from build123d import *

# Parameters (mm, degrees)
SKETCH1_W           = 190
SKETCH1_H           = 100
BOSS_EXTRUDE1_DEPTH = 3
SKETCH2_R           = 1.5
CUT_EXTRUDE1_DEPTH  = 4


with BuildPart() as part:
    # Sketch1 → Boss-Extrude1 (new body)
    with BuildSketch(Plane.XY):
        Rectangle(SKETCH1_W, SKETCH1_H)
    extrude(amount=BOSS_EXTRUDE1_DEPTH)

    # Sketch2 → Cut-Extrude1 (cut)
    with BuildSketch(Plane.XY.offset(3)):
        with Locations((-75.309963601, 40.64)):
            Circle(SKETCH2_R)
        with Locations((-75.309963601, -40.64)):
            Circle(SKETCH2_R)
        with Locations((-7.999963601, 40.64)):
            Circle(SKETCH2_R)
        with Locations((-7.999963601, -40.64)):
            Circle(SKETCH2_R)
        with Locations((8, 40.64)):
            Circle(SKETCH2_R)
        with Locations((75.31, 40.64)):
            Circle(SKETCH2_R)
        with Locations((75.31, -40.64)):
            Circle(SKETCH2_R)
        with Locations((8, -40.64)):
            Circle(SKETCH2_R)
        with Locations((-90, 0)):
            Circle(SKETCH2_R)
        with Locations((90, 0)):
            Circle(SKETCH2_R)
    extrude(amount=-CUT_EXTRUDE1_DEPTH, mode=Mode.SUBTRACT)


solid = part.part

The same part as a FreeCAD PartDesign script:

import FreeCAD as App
import Part
import Sketcher


def add_polygon(sketch, points):
    """Adds a closed chain of lines whose ends are joined by coincident constraints."""
    first, n = sketch.GeometryCount, len(points)
    for a, b in zip(points, points[1:] + points[:1]):
        sketch.addGeometry(Part.LineSegment(App.Vector(*a, 0), App.Vector(*b, 0)), False)
    for i in range(n):
        sketch.addConstraint(Sketcher.Constraint("Coincident", first + i, 2, first + (i + 1) % n, 1))

doc = App.newDocument("Part")
body = doc.addObject("PartDesign::Body", "Body")

# Sketch on XY plane
sketch1 = doc.addObject("Sketcher::SketchObject", "Sketch")
body.addObject(sketch1)
sketch1.AttachmentSupport = (doc.XY_Plane, [""])
sketch1.MapMode = "FlatFace"
add_polygon(sketch1, [(-95, 50), (-95, -50), (95, -50), (95, 50)])  # lines 0-3
sketch1.addConstraint([
    Sketcher.Constraint("Vertical", 0),
    Sketcher.Constraint("Horizontal", 1),
    Sketcher.Constraint("Vertical", 2),
    Sketcher.Constraint("Horizontal", 3),
    Sketcher.Constraint("Symmetric", 0, 2, 2, 2, -1, 1),
    Sketcher.Constraint("DistanceX", 1, 1, 1, 2, 190.0),
    Sketcher.Constraint("DistanceY", 0, 2, 0, 1, 100.0),
])
pad1 = doc.addObject("PartDesign::Pad", "Pad")
body.addObject(pad1)
pad1.Profile = sketch1
pad1.Length = 3

# Sketch on XY plane
sketch2 = doc.addObject("Sketcher::SketchObject", "Sketch001")
body.addObject(sketch2)
sketch2.AttachmentSupport = (doc.XY_Plane, [""])
sketch2.MapMode = "FlatFace"
sketch2.AttachmentOffset = App.Placement(App.Vector(0, 0, 3), App.Rotation())
sketch2.addGeometry([
    Part.Circle(App.Vector(-75.3, 40.6, 0), App.Vector(0, 0, 1), 1.5),  # 0
    Part.Circle(App.Vector(-75.3, -40.6, 0), App.Vector(0, 0, 1), 1.5),  # 1
    Part.Circle(App.Vector(-8, 40.6, 0), App.Vector(0, 0, 1), 1.5),  # 2
    Part.Circle(App.Vector(-8, -40.6, 0), App.Vector(0, 0, 1), 1.5),  # 3
    Part.Circle(App.Vector(8, 40.6, 0), App.Vector(0, 0, 1), 1.5),  # 4
    Part.Circle(App.Vector(75.3, 40.6, 0), App.Vector(0, 0, 1), 1.5),  # 5
    Part.Circle(App.Vector(75.3, -40.6, 0), App.Vector(0, 0, 1), 1.5),  # 6
    Part.Circle(App.Vector(8, -40.6, 0), App.Vector(0, 0, 1), 1.5),  # 7
    Part.Circle(App.Vector(-90, 0, 0), App.Vector(0, 0, 1), 1.5),  # 8
    Part.Circle(App.Vector(90, 0, 0), App.Vector(0, 0, 1), 1.5),  # 9
], False)
sketch2.addConstraint([
    Sketcher.Constraint("Equal", 0, 1),
    Sketcher.Constraint("Equal", 1, 2),
    Sketcher.Constraint("Equal", 2, 3),
    Sketcher.Constraint("Equal", 3, 4),
    Sketcher.Constraint("Equal", 4, 5),
    Sketcher.Constraint("Equal", 5, 6),
    Sketcher.Constraint("Equal", 6, 7),
    Sketcher.Constraint("Equal", 7, 8),
    Sketcher.Constraint("Equal", 8, 9),
    Sketcher.Constraint("Symmetric", 8, 3, 9, 3, -1, 1),
    Sketcher.Constraint("Symmetric", 0, 3, 1, 3, -1),
    Sketcher.Constraint("Symmetric", 2, 3, 3, 3, -1),
    Sketcher.Constraint("Symmetric", 5, 3, 6, 3, -1),
    Sketcher.Constraint("Symmetric", 4, 3, 7, 3, -1),
    Sketcher.Constraint("PointOnObject", 8, 3, -1),
    Sketcher.Constraint("Horizontal", 0, 3, 2, 3),
    Sketcher.Constraint("Horizontal", 2, 3, 4, 3),
    Sketcher.Constraint("Horizontal", 4, 3, 5, 3),
    Sketcher.Constraint("Diameter", 0, 3.0),
    Sketcher.Constraint("DistanceX", -1, 1, 4, 3, 8.0),
    Sketcher.Constraint("DistanceX", 8, 3, -1, 1, 90.0),
    Sketcher.Constraint("DistanceY", -1, 1, 0, 3, 40.64),
    Sketcher.Constraint("DistanceX", -1, 1, 5, 3, 75.31),
    Sketcher.Constraint("DistanceX", 0, 3, 2, 3, 67.31),
    Sketcher.Constraint("DistanceX", 0, 3, -1, 1, 75.309964),
])
pocket1 = doc.addObject("PartDesign::Pocket", "Pocket")
body.addObject(pocket1)
pocket1.Profile = sketch2
pocket1.Length = 4

doc.recompute()
